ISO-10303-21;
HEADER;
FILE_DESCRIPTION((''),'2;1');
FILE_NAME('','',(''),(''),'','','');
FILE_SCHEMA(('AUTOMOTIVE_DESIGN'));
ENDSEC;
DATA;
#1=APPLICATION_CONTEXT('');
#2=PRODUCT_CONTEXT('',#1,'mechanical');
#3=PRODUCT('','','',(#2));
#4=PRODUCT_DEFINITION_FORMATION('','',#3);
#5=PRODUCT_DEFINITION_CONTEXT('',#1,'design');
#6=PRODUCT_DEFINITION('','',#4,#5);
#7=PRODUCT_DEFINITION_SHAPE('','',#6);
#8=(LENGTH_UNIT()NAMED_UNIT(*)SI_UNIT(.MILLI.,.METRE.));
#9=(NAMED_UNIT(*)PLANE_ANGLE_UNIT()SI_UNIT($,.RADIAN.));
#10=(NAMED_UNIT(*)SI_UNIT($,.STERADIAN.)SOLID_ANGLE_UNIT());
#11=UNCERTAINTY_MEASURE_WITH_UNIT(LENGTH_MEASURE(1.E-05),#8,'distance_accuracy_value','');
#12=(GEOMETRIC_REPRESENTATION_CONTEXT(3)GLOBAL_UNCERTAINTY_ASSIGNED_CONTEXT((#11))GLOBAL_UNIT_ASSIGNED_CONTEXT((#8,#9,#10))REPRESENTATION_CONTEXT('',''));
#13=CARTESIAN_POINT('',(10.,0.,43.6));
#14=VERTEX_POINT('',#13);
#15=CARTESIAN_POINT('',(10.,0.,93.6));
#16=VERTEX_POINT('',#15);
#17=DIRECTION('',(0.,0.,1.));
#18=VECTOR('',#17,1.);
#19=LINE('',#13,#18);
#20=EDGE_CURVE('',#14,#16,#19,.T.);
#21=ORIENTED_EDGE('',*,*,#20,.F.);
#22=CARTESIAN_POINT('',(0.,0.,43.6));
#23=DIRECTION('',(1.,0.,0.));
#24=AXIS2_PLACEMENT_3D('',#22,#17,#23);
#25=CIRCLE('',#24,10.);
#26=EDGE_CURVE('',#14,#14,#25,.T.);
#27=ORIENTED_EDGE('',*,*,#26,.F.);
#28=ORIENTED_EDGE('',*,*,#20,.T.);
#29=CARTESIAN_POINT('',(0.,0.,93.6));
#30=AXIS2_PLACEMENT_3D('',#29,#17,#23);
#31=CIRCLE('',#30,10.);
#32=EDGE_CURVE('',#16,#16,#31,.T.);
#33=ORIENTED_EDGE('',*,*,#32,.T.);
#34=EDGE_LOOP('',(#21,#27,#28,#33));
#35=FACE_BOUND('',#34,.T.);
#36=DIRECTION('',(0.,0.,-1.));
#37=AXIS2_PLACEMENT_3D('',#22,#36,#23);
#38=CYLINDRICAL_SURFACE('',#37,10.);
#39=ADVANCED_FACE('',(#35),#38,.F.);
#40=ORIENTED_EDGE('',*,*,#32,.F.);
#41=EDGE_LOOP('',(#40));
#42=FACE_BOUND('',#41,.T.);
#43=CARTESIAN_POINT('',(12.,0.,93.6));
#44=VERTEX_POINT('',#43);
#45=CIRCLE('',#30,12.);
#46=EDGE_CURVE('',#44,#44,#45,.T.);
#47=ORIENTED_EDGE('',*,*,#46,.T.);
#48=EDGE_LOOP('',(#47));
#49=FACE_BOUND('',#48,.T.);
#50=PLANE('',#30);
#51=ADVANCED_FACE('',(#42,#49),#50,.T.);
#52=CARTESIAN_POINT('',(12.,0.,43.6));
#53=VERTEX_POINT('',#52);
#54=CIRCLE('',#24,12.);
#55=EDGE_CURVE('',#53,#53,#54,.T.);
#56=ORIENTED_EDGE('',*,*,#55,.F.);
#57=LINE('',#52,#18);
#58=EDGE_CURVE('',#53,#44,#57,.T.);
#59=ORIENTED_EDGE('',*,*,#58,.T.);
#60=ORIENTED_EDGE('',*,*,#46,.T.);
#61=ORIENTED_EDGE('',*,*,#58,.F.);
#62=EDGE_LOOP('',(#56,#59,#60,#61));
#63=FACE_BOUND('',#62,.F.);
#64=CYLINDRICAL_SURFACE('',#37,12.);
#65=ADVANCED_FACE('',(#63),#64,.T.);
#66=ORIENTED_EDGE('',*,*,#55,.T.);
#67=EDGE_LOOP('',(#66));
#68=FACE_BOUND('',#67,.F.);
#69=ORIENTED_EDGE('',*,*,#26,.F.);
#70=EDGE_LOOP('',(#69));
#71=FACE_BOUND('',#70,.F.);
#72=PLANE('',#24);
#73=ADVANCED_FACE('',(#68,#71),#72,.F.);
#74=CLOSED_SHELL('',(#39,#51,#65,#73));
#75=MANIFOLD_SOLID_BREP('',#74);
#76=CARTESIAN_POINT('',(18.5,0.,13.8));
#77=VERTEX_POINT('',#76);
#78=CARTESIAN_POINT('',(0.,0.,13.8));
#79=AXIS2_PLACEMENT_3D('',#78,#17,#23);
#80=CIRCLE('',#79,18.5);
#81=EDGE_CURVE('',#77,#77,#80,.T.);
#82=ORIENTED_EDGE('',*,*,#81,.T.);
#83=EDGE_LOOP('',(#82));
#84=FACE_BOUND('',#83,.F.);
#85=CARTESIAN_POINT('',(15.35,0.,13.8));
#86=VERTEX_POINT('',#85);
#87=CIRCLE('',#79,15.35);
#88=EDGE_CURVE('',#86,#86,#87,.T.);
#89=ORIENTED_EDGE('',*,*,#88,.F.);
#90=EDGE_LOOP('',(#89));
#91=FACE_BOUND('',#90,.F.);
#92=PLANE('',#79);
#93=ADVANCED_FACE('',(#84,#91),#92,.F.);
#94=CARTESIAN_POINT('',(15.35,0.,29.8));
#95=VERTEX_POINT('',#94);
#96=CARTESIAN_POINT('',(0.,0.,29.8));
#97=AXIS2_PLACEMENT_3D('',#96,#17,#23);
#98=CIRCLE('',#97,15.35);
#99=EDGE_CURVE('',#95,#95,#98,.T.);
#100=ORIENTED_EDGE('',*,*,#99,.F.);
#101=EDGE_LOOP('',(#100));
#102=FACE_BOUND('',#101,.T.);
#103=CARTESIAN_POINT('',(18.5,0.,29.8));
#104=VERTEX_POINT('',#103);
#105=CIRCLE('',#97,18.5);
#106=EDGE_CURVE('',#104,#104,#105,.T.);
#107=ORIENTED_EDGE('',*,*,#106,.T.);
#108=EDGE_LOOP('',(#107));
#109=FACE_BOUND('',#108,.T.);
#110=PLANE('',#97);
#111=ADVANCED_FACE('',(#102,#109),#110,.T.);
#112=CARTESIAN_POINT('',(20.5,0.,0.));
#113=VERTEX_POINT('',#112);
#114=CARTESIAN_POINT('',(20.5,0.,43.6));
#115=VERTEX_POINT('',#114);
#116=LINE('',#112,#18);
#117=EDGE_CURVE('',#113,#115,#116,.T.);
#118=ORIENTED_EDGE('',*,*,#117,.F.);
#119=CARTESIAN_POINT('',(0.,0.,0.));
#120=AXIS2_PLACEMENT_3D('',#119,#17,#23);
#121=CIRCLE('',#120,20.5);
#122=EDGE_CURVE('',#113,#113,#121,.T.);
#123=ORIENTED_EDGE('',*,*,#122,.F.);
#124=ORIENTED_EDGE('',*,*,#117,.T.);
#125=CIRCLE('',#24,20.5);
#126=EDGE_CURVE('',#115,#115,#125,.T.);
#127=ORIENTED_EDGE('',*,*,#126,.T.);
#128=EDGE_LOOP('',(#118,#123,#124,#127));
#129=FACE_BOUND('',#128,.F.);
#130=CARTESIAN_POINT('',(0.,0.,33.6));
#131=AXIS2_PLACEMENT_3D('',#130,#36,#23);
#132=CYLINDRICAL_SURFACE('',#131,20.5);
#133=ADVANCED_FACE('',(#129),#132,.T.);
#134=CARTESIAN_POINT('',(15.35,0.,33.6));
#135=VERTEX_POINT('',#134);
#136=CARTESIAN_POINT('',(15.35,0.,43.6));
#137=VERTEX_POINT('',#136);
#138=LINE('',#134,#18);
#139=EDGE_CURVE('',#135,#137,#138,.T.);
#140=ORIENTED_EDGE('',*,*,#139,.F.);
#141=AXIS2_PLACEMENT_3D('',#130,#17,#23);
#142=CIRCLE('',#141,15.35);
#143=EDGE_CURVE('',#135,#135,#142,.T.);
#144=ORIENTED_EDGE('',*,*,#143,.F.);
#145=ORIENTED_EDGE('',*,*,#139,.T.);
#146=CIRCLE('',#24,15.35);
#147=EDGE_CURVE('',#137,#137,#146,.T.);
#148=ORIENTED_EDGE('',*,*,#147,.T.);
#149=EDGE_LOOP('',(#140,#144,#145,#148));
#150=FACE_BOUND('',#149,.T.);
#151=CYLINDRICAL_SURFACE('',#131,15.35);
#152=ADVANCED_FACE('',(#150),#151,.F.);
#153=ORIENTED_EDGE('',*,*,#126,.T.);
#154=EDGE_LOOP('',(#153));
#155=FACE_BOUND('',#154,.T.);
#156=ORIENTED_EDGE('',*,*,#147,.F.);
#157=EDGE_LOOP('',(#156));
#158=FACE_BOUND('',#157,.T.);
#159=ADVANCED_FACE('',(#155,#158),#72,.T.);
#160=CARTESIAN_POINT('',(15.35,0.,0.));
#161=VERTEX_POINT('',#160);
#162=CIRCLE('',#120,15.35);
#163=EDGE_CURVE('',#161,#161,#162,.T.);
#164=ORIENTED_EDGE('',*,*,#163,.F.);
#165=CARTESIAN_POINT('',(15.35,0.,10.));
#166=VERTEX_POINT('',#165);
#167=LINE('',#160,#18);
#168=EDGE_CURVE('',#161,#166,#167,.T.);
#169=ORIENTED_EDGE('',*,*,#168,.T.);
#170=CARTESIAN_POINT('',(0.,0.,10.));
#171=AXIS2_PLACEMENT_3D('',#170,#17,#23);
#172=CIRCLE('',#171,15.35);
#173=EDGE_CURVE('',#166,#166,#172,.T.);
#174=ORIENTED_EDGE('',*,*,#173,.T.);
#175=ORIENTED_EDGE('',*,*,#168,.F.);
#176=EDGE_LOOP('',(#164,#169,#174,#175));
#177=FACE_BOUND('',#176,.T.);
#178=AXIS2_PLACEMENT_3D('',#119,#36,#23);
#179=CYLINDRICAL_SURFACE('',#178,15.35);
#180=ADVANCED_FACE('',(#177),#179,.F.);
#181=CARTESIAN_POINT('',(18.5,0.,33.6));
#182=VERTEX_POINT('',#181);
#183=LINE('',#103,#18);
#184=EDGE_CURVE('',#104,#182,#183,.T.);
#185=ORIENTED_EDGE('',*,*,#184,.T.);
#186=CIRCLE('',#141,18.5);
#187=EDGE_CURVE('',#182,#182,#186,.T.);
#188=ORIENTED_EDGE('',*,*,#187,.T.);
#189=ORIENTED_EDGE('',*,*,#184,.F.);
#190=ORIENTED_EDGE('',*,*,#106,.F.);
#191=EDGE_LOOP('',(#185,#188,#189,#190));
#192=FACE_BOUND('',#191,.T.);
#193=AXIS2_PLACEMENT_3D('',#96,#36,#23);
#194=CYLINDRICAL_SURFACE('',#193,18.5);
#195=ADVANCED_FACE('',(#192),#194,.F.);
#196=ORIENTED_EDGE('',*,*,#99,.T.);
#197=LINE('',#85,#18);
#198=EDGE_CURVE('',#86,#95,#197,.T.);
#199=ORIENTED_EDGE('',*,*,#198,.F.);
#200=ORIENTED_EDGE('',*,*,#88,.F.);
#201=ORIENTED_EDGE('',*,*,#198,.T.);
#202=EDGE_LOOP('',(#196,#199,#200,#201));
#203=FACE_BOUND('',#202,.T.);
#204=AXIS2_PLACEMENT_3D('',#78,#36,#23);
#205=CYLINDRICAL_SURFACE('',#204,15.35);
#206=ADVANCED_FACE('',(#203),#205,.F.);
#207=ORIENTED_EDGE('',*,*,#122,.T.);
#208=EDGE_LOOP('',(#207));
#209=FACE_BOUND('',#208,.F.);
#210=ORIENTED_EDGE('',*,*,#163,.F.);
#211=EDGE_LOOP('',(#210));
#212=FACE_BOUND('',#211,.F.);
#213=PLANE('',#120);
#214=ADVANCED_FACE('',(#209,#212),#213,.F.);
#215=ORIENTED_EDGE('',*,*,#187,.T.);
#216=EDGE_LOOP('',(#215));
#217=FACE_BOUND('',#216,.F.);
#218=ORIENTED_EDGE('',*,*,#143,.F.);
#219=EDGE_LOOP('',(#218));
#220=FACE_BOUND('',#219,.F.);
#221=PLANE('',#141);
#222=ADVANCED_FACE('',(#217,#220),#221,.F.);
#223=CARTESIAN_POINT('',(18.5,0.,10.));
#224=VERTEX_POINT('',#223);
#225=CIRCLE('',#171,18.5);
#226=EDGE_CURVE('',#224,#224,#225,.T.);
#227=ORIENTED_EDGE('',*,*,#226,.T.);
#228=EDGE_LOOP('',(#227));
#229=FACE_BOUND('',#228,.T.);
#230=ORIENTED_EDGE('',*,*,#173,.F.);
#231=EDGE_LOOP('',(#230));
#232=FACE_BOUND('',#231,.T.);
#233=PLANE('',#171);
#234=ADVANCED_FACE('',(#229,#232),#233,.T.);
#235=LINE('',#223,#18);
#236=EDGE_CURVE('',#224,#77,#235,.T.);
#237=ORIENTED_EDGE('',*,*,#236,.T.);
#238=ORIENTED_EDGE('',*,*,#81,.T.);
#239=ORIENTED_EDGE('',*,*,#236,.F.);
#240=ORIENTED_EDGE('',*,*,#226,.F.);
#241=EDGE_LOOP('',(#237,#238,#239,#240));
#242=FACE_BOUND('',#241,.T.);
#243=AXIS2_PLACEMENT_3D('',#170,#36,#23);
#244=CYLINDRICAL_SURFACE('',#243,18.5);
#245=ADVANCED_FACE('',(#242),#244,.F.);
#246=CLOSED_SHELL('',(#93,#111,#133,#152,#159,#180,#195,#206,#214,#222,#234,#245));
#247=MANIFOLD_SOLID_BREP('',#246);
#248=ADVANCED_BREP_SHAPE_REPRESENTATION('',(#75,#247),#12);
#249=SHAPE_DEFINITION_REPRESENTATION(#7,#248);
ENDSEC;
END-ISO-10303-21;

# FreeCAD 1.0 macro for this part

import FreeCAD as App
import Part
import Sketcher

V = App.Vector

doc = App.newDocument("Part")
body = doc.addObject("PartDesign::Body", "Body")

sketch1 = body.newObject("Sketcher::SketchObject", "Sketch")
sketch1.AttachmentSupport = (doc.getObject("XY_Plane"), [""])
sketch1.MapMode = "FlatFace"
sketch1.addGeometry(Part.Circle(V(0, 0, 0), V(0, 0, 1), 20.5), False)
sketch1.addGeometry(Part.Circle(V(0, 0, 0), V(0, 0, 1), 15.35), False)
sketch1.addConstraint(Sketcher.Constraint("Coincident", 0, 3, -1, 1))
sketch1.addConstraint(Sketcher.Constraint("Coincident", 1, 3, -1, 1))
sketch1.addConstraint(Sketcher.Constraint("Diameter", 0, 41.0))
sketch1.addConstraint(Sketcher.Constraint("Diameter", 1, 30.7))
pad1 = body.newObject("PartDesign::Pad", "Pad")
pad1.Profile = sketch1
pad1.Length = 10

sketch2 = body.newObject("Sketcher::SketchObject", "Sketch001")
sketch2.AttachmentSupport = (doc.getObject("XY_Plane"), [""])
sketch2.MapMode = "FlatFace"
sketch2.AttachmentOffset = App.Placement(V(0, 0, 10), App.Rotation())
sketch2.addGeometry(Part.Circle(V(0, 0, 0), V(0, 0, 1), 20.5), False)
sketch2.addGeometry(Part.Circle(V(0, 0, 0), V(0, 0, 1), 18.5), False)
sketch2.addConstraint(Sketcher.Constraint("Coincident", 0, 3, -1, 1))
sketch2.addConstraint(Sketcher.Constraint("Coincident", 1, 3, -1, 1))
sketch2.addConstraint(Sketcher.Constraint("Diameter", 0, 41.0))
sketch2.addConstraint(Sketcher.Constraint("Diameter", 1, 37.0))
pad2 = body.newObject("PartDesign::Pad", "Pad001")
pad2.Profile = sketch2
pad2.Length = 3.8

sketch3 = body.newObject("Sketcher::SketchObject", "Sketch002")
sketch3.AttachmentSupport = (doc.getObject("XY_Plane"), [""])
sketch3.MapMode = "FlatFace"
sketch3.AttachmentOffset = App.Placement(V(0, 0, 13.8), App.Rotation())
sketch3.addGeometry(Part.Circle(V(0, 0, 0), V(0, 0, 1), 20.5), False)
sketch3.addGeometry(Part.Circle(V(0, 0, 0), V(0, 0, 1), 15.35), False)
sketch3.addConstraint(Sketcher.Constraint("Coincident", 0, 3, -1, 1))
sketch3.addConstraint(Sketcher.Constraint("Coincident", 1, 3, -1, 1))
sketch3.addConstraint(Sketcher.Constraint("Diameter", 0, 41.0))
sketch3.addConstraint(Sketcher.Constraint("Diameter", 1, 30.7))
pad3 = body.newObject("PartDesign::Pad", "Pad002")
pad3.Profile = sketch3
pad3.Length = 16

sketch4 = body.newObject("Sketcher::SketchObject", "Sketch003")
sketch4.AttachmentSupport = (doc.getObject("XY_Plane"), [""])
sketch4.MapMode = "FlatFace"
sketch4.AttachmentOffset = App.Placement(V(0, 0, 29.8), App.Rotation())
sketch4.addGeometry(Part.Circle(V(0, 0, 0), V(0, 0, 1), 20.5), False)
sketch4.addGeometry(Part.Circle(V(0, 0, 0), V(0, 0, 1), 18.5), False)
sketch4.addConstraint(Sketcher.Constraint("Coincident", 0, 3, -1, 1))
sketch4.addConstraint(Sketcher.Constraint("Coincident", 1, 3, -1, 1))
sketch4.addConstraint(Sketcher.Constraint("Diameter", 0, 41.0))
sketch4.addConstraint(Sketcher.Constraint("Diameter", 1, 37.0))
pad4 = body.newObject("PartDesign::Pad", "Pad003")
pad4.Profile = sketch4
pad4.Length = 3.8

sketch5 = body.newObject("Sketcher::SketchObject", "Sketch004")
sketch5.AttachmentSupport = (doc.getObject("XY_Plane"), [""])
sketch5.MapMode = "FlatFace"
sketch5.AttachmentOffset = App.Placement(V(0, 0, 33.6), App.Rotation())
sketch5.addGeometry(Part.Circle(V(0, 0, 0), V(0, 0, 1), 20.5), False)
sketch5.addGeometry(Part.Circle(V(0, 0, 0), V(0, 0, 1), 15.35), False)
sketch5.addConstraint(Sketcher.Constraint("Coincident", 0, 3, -1, 1))
sketch5.addConstraint(Sketcher.Constraint("Coincident", 1, 3, -1, 1))
sketch5.addConstraint(Sketcher.Constraint("Diameter", 0, 41.0))
sketch5.addConstraint(Sketcher.Constraint("Diameter", 1, 30.7))
pad5 = body.newObject("PartDesign::Pad", "Pad004")
pad5.Profile = sketch5
pad5.Length = 10
body2 = doc.addObject("PartDesign::Body", "Body001")

sketch6 = body2.newObject("Sketcher::SketchObject", "Sketch005")
sketch6.AttachmentSupport = (doc.getObject("XY_Plane001"), [""])
sketch6.MapMode = "FlatFace"
sketch6.AttachmentOffset = App.Placement(V(0, 0, 43.6), App.Rotation())
sketch6.addGeometry(Part.Circle(V(0, 0, 0), V(0, 0, 1), 12), False)
sketch6.addGeometry(Part.Circle(V(0, 0, 0), V(0, 0, 1), 10), False)
sketch6.addConstraint(Sketcher.Constraint("Coincident", 0, 3, -1, 1))
sketch6.addConstraint(Sketcher.Constraint("Coincident", 1, 3, -1, 1))
sketch6.addConstraint(Sketcher.Constraint("Diameter", 0, 24.0))
sketch6.addConstraint(Sketcher.Constraint("Diameter", 1, 20.0))
pad6 = body2.newObject("PartDesign::Pad", "Pad005")
pad6.Profile = sketch6
pad6.Length = 50

doc.recompute()
